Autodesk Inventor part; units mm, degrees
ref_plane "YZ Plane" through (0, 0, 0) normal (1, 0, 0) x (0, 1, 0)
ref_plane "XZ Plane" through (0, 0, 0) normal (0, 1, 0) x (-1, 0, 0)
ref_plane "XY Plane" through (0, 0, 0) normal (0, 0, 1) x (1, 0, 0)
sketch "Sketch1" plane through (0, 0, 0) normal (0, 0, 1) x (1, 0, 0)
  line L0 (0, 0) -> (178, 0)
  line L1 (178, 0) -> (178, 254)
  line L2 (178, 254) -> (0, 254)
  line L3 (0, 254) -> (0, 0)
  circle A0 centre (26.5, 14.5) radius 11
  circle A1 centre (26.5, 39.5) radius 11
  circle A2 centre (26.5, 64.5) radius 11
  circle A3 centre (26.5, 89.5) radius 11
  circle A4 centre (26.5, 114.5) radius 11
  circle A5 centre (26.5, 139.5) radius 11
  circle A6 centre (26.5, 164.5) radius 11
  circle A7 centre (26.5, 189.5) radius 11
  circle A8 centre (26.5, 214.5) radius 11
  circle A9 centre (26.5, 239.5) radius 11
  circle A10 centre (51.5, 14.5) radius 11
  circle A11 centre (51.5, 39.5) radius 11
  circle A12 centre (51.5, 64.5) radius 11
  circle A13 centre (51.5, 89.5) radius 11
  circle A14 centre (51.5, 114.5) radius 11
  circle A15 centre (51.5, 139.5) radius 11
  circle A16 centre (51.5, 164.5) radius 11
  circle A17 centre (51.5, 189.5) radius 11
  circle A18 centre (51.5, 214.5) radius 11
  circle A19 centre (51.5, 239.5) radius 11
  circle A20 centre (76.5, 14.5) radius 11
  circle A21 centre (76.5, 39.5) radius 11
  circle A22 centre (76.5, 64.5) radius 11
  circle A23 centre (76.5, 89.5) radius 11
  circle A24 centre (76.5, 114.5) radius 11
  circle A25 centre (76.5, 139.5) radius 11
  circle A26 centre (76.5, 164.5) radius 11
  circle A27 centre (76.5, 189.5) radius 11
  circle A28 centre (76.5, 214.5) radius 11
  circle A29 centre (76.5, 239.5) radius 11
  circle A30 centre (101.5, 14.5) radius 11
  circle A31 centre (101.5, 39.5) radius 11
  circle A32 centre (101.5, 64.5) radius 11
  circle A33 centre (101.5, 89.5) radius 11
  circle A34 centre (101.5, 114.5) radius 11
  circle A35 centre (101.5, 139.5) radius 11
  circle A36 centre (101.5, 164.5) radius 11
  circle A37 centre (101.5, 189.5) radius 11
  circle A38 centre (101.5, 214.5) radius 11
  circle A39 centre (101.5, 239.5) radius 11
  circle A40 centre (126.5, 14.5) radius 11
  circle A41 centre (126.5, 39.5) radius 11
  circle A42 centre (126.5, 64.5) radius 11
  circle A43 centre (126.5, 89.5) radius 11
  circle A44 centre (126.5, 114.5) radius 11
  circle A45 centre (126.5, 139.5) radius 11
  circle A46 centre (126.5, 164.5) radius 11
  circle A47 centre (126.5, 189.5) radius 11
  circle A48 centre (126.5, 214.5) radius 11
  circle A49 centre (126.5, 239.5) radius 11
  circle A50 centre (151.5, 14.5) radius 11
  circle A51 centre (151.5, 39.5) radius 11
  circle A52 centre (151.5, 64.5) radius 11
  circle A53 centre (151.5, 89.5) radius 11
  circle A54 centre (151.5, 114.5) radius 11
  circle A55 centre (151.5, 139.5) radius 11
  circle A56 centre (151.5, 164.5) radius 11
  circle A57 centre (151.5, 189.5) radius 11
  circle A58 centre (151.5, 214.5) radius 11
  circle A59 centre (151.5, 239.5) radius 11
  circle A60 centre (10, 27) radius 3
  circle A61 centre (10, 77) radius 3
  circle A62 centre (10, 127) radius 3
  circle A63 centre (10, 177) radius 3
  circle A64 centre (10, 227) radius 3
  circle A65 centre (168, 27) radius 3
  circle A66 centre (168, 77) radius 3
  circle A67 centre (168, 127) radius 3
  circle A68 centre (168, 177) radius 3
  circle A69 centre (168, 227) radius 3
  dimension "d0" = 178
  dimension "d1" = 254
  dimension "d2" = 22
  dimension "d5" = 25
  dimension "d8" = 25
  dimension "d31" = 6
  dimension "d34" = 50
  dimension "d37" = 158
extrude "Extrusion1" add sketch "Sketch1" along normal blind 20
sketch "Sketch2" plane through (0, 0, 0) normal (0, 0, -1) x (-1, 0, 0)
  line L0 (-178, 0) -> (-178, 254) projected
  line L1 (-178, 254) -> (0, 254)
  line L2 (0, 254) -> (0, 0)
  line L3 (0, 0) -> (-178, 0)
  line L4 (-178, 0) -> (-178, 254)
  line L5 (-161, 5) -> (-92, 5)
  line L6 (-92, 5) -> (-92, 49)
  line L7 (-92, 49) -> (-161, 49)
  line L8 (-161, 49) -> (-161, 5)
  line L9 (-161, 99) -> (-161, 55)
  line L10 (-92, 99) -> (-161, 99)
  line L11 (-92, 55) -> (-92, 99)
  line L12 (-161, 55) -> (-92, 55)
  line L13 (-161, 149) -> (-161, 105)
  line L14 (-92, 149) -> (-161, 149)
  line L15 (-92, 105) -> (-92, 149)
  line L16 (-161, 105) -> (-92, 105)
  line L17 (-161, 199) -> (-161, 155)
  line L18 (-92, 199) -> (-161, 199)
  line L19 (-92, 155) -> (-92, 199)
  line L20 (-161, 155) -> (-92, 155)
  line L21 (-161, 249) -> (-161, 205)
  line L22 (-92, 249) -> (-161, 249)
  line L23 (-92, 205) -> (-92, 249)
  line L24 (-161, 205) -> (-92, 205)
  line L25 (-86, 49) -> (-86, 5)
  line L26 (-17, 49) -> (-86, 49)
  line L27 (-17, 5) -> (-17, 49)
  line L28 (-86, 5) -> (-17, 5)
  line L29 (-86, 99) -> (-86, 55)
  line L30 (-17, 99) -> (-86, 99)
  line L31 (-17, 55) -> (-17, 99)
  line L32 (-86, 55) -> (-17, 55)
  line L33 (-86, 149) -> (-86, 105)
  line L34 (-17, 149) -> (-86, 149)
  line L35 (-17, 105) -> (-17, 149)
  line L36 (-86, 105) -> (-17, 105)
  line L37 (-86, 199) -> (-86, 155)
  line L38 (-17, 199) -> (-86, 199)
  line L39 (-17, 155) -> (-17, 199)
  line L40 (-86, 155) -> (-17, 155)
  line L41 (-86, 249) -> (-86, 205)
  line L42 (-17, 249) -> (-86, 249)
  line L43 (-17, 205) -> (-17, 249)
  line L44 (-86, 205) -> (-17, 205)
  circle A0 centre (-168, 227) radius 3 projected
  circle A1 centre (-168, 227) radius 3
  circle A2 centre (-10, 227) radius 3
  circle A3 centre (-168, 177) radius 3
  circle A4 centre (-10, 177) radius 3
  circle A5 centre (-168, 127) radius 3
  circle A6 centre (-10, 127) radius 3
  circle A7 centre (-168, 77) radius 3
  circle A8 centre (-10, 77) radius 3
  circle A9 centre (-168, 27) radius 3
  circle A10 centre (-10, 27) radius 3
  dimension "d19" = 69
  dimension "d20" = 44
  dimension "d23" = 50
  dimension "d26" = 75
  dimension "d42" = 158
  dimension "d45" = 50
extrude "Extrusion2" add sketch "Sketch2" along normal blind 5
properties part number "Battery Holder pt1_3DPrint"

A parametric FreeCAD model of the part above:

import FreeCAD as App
import Part
import Sketcher


def add_polygon(sketch, points):
    """Adds a closed chain of lines whose ends are joined by coincident constraints."""
    first, n = sketch.GeometryCount, len(points)
    for a, b in zip(points, points[1:] + points[:1]):
        sketch.addGeometry(Part.LineSegment(App.Vector(*a, 0), App.Vector(*b, 0)), False)
    for i in range(n):
        sketch.addConstraint(Sketcher.Constraint("Coincident", first + i, 2, first + (i + 1) % n, 1))

doc = App.newDocument("Part")
body = doc.addObject("PartDesign::Body", "Body")

# Sketch on XY plane
sketch1 = body.newObject("Sketcher::SketchObject", "Sketch")
sketch1.AttachmentSupport = (doc.getObject("XY_Plane"), [""])
sketch1.MapMode = "FlatFace"
add_polygon(sketch1, [(0, 254), (0, 0), (178, 0), (178, 254)])  # lines 0-3
sketch1.addGeometry(Part.Circle(App.Vector(10, 27, 0), App.Vector(0, 0, 1), 3), False)  # 4
sketch1.addGeometry(Part.Circle(App.Vector(26.5, 14.5, 0), App.Vector(0, 0, 1), 11), False)  # 5
sketch1.addGeometry(Part.Circle(App.Vector(26.5, 39.5, 0), App.Vector(0, 0, 1), 11), False)  # 6
sketch1.addGeometry(Part.Circle(App.Vector(51.5, 14.5, 0), App.Vector(0, 0, 1), 11), False)  # 7
sketch1.addGeometry(Part.Circle(App.Vector(76.5, 14.5, 0), App.Vector(0, 0, 1), 11), False)  # 8
sketch1.addGeometry(Part.Circle(App.Vector(51.5, 39.5, 0), App.Vector(0, 0, 1), 11), False)  # 9
sketch1.addGeometry(Part.Circle(App.Vector(76.5, 39.5, 0), App.Vector(0, 0, 1), 11), False)  # 10
sketch1.addGeometry(Part.Circle(App.Vector(10, 77, 0), App.Vector(0, 0, 1), 3), False)  # 11
sketch1.addGeometry(Part.Circle(App.Vector(26.5, 64.5, 0), App.Vector(0, 0, 1), 11), False)  # 12
sketch1.addGeometry(Part.Circle(App.Vector(26.5, 89.5, 0), App.Vector(0, 0, 1), 11), False)  # 13
sketch1.addGeometry(Part.Circle(App.Vector(26.5, 114.5, 0), App.Vector(0, 0, 1), 11), False)  # 14
sketch1.addGeometry(Part.Circle(App.Vector(51.5, 64.5, 0), App.Vector(0, 0, 1), 11), False)  # 15
sketch1.addGeometry(Part.Circle(App.Vector(51.5, 89.5, 0), App.Vector(0, 0, 1), 11), False)  # 16
sketch1.addGeometry(Part.Circle(App.Vector(76.5, 64.5, 0), App.Vector(0, 0, 1), 11), False)  # 17
sketch1.addGeometry(Part.Circle(App.Vector(76.5, 89.5, 0), App.Vector(0, 0, 1), 11), False)  # 18
sketch1.addGeometry(Part.Circle(App.Vector(51.5, 114.5, 0), App.Vector(0, 0, 1), 11), False)  # 19
sketch1.addGeometry(Part.Circle(App.Vector(76.5, 114.5, 0), App.Vector(0, 0, 1), 11), False)  # 20
sketch1.addGeometry(Part.Circle(App.Vector(101.5, 14.5, 0), App.Vector(0, 0, 1), 11), False)  # 21
sketch1.addGeometry(Part.Circle(App.Vector(126.5, 14.5, 0), App.Vector(0, 0, 1), 11), False)  # 22
sketch1.addGeometry(Part.Circle(App.Vector(101.5, 39.5, 0), App.Vector(0, 0, 1), 11), False)  # 23
sketch1.addGeometry(Part.Circle(App.Vector(126.5, 39.5, 0), App.Vector(0, 0, 1), 11), False)  # 24
sketch1.addGeometry(Part.Circle(App.Vector(151.5, 14.5, 0), App.Vector(0, 0, 1), 11), False)  # 25
sketch1.addGeometry(Part.Circle(App.Vector(168, 27, 0), App.Vector(0, 0, 1), 3), False)  # 26
sketch1.addGeometry(Part.Circle(App.Vector(151.5, 39.5, 0), App.Vector(0, 0, 1), 11), False)  # 27
sketch1.addGeometry(Part.Circle(App.Vector(101.5, 64.5, 0), App.Vector(0, 0, 1), 11), False)  # 28
sketch1.addGeometry(Part.Circle(App.Vector(101.5, 89.5, 0), App.Vector(0, 0, 1), 11), False)  # 29
sketch1.addGeometry(Part.Circle(App.Vector(126.5, 64.5, 0), App.Vector(0, 0, 1), 11), False)  # 30
sketch1.addGeometry(Part.Circle(App.Vector(126.5, 89.5, 0), App.Vector(0, 0, 1), 11), False)  # 31
sketch1.addGeometry(Part.Circle(App.Vector(101.5, 114.5, 0), App.Vector(0, 0, 1), 11), False)  # 32
sketch1.addGeometry(Part.Circle(App.Vector(126.5, 114.5, 0), App.Vector(0, 0, 1), 11), False)  # 33
sketch1.addGeometry(Part.Circle(App.Vector(151.5, 64.5, 0), App.Vector(0, 0, 1), 11), False)  # 34
sketch1.addGeometry(Part.Circle(App.Vector(151.5, 89.5, 0), App.Vector(0, 0, 1), 11), False)  # 35
sketch1.addGeometry(Part.Circle(App.Vector(168, 77, 0), App.Vector(0, 0, 1), 3), False)  # 36
sketch1.addGeometry(Part.Circle(App.Vector(151.5, 114.5, 0), App.Vector(0, 0, 1), 11), False)  # 37
sketch1.addGeometry(Part.Circle(App.Vector(10, 127, 0), App.Vector(0, 0, 1), 3), False)  # 38
sketch1.addGeometry(Part.Circle(App.Vector(26.5, 139.5, 0), App.Vector(0, 0, 1), 11), False)  # 39
sketch1.addGeometry(Part.Circle(App.Vector(10, 177, 0), App.Vector(0, 0, 1), 3), False)  # 40
sketch1.addGeometry(Part.Circle(App.Vector(26.5, 164.5, 0), App.Vector(0, 0, 1), 11), False)  # 41
sketch1.addGeometry(Part.Circle(App.Vector(26.5, 189.5, 0), App.Vector(0, 0, 1), 11), False)  # 42
sketch1.addGeometry(Part.Circle(App.Vector(51.5, 139.5, 0), App.Vector(0, 0, 1), 11), False)  # 43
sketch1.addGeometry(Part.Circle(App.Vector(76.5, 139.5, 0), App.Vector(0, 0, 1), 11), False)  # 44
sketch1.addGeometry(Part.Circle(App.Vector(51.5, 164.5, 0), App.Vector(0, 0, 1), 11), False)  # 45
sketch1.addGeometry(Part.Circle(App.Vector(51.5, 189.5, 0), App.Vector(0, 0, 1), 11), False)  # 46
sketch1.addGeometry(Part.Circle(App.Vector(76.5, 164.5, 0), App.Vector(0, 0, 1), 11), False)  # 47
sketch1.addGeometry(Part.Circle(App.Vector(76.5, 189.5, 0), App.Vector(0, 0, 1), 11), False)  # 48
sketch1.addGeometry(Part.Circle(App.Vector(26.5, 214.5, 0), App.Vector(0, 0, 1), 11), False)  # 49
sketch1.addGeometry(Part.Circle(App.Vector(10, 227, 0), App.Vector(0, 0, 1), 3), False)  # 50
sketch1.addGeometry(Part.Circle(App.Vector(26.5, 239.5, 0), App.Vector(0, 0, 1), 11), False)  # 51
sketch1.addGeometry(Part.Circle(App.Vector(51.5, 214.5, 0), App.Vector(0, 0, 1), 11), False)  # 52
sketch1.addGeometry(Part.Circle(App.Vector(76.5, 214.5, 0), App.Vector(0, 0, 1), 11), False)  # 53
sketch1.addGeometry(Part.Circle(App.Vector(51.5, 239.5, 0), App.Vector(0, 0, 1), 11), False)  # 54
sketch1.addGeometry(Part.Circle(App.Vector(76.5, 239.5, 0), App.Vector(0, 0, 1), 11), False)  # 55
sketch1.addGeometry(Part.Circle(App.Vector(101.5, 139.5, 0), App.Vector(0, 0, 1), 11), False)  # 56
sketch1.addGeometry(Part.Circle(App.Vector(126.5, 139.5, 0), App.Vector(0, 0, 1), 11), False)  # 57
sketch1.addGeometry(Part.Circle(App.Vector(101.5, 164.5, 0), App.Vector(0, 0, 1), 11), False)  # 58
sketch1.addGeometry(Part.Circle(App.Vector(101.5, 189.5, 0), App.Vector(0, 0, 1), 11), False)  # 59
sketch1.addGeometry(Part.Circle(App.Vector(126.5, 164.5, 0), App.Vector(0, 0, 1), 11), False)  # 60
sketch1.addGeometry(Part.Circle(App.Vector(126.5, 189.5, 0), App.Vector(0, 0, 1), 11), False)  # 61
sketch1.addGeometry(Part.Circle(App.Vector(151.5, 139.5, 0), App.Vector(0, 0, 1), 11), False)  # 62
sketch1.addGeometry(Part.Circle(App.Vector(168, 127, 0), App.Vector(0, 0, 1), 3), False)  # 63
sketch1.addGeometry(Part.Circle(App.Vector(151.5, 164.5, 0), App.Vector(0, 0, 1), 11), False)  # 64
sketch1.addGeometry(Part.Circle(App.Vector(151.5, 189.5, 0), App.Vector(0, 0, 1), 11), False)  # 65
sketch1.addGeometry(Part.Circle(App.Vector(168, 177, 0), App.Vector(0, 0, 1), 3), False)  # 66
sketch1.addGeometry(Part.Circle(App.Vector(101.5, 214.5, 0), App.Vector(0, 0, 1), 11), False)  # 67
sketch1.addGeometry(Part.Circle(App.Vector(126.5, 214.5, 0), App.Vector(0, 0, 1), 11), False)  # 68
sketch1.addGeometry(Part.Circle(App.Vector(101.5, 239.5, 0), App.Vector(0, 0, 1), 11), False)  # 69
sketch1.addGeometry(Part.Circle(App.Vector(126.5, 239.5, 0), App.Vector(0, 0, 1), 11), False)  # 70
sketch1.addGeometry(Part.Circle(App.Vector(151.5, 214.5, 0), App.Vector(0, 0, 1), 11), False)  # 71
sketch1.addGeometry(Part.Circle(App.Vector(151.5, 239.5, 0), App.Vector(0, 0, 1), 11), False)  # 72
sketch1.addGeometry(Part.Circle(App.Vector(168, 227, 0), App.Vector(0, 0, 1), 3), False)  # 73
sketch1.addConstraint([
    Sketcher.Constraint("Vertical", 0),
    Sketcher.Constraint("Horizontal", 1),
    Sketcher.Constraint("Vertical", 2),
    Sketcher.Constraint("Horizontal", 3),
    Sketcher.Constraint("Coincident", 0, 2, -1, 1),
    Sketcher.Constraint("Equal", 5, 6),
    Sketcher.Constraint("Equal", 6, 7),
    Sketcher.Constraint("Equal", 7, 8),
    Sketcher.Constraint("Equal", 8, 9),
    Sketcher.Constraint("Equal", 9, 10),
    Sketcher.Constraint("Equal", 4, 11),
    Sketcher.Constraint("Equal", 10, 12),
    Sketcher.Constraint("Equal", 12, 13),
    Sketcher.Constraint("Equal", 13, 14),
    Sketcher.Constraint("Equal", 14, 15),
    Sketcher.Constraint("Equal", 15, 16),
    Sketcher.Constraint("Equal", 16, 17),
    Sketcher.Constraint("Equal", 17, 18),
    Sketcher.Constraint("Equal", 18, 19),
    Sketcher.Constraint("Equal", 19, 20),
    Sketcher.Constraint("Equal", 20, 21),
    Sketcher.Constraint("Equal", 21, 22),
    Sketcher.Constraint("Equal", 22, 23),
    Sketcher.Constraint("Equal", 23, 24),
    Sketcher.Constraint("Equal", 24, 25),
    Sketcher.Constraint("Equal", 11, 26),
    Sketcher.Constraint("Equal", 25, 27),
    Sketcher.Constraint("Equal", 27, 28),
    Sketcher.Constraint("Equal", 28, 29),
    Sketcher.Constraint("Equal", 29, 30),
    Sketcher.Constraint("Equal", 30, 31),
    Sketcher.Constraint("Equal", 31, 32),
    Sketcher.Constraint("Equal", 32, 33),
    Sketcher.Constraint("Equal", 33, 34),
    Sketcher.Constraint("Equal", 34, 35),
    Sketcher.Constraint("Equal", 26, 36),
    Sketcher.Constraint("Equal", 35, 37),
    Sketcher.Constraint("Equal", 36, 38),
    Sketcher.Constraint("Equal", 37, 39),
    Sketcher.Constraint("Equal", 38, 40),
    Sketcher.Constraint("Equal", 39, 41),
    Sketcher.Constraint("Equal", 41, 42),
    Sketcher.Constraint("Equal", 42, 43),
    Sketcher.Constraint("Equal", 43, 44),
    Sketcher.Constraint("Equal", 44, 45),
    Sketcher.Constraint("Equal", 45, 46),
    Sketcher.Constraint("Equal", 46, 47),
    Sketcher.Constraint("Equal", 47, 48),
    Sketcher.Constraint("Equal", 48, 49),
    Sketcher.Constraint("Equal", 40, 50),
    Sketcher.Constraint("Equal", 49, 51),
    Sketcher.Constraint("Equal", 51, 52),
    Sketcher.Constraint("Equal", 52, 53),
    Sketcher.Constraint("Equal", 53, 54),
    Sketcher.Constraint("Equal", 54, 55),
    Sketcher.Constraint("Equal", 55, 56),
    Sketcher.Constraint("Equal", 56, 57),
    Sketcher.Constraint("Equal", 57, 58),
    Sketcher.Constraint("Equal", 58, 59),
    Sketcher.Constraint("Equal", 59, 60),
    Sketcher.Constraint("Equal", 60, 61),
    Sketcher.Constraint("Equal", 61, 62),
    Sketcher.Constraint("Equal", 50, 63),
    Sketcher.Constraint("Equal", 62, 64),
    Sketcher.Constraint("Equal", 64, 65),
    Sketcher.Constraint("Equal", 63, 66),
    Sketcher.Constraint("Equal", 65, 67),
    Sketcher.Constraint("Equal", 67, 68),
    Sketcher.Constraint("Equal", 68, 69),
    Sketcher.Constraint("Equal", 69, 70),
    Sketcher.Constraint("Equal", 70, 71),
    Sketcher.Constraint("Equal", 71, 72),
    Sketcher.Constraint("Equal", 66, 73),
    Sketcher.Constraint("Horizontal", 5, 3, 7, 3),
    Sketcher.Constraint("Horizontal", 7, 3, 8, 3),
    Sketcher.Constraint("Horizontal", 6, 3, 9, 3),
    Sketcher.Constraint("Horizontal", 9, 3, 10, 3),
    Sketcher.Constraint("Horizontal", 12, 3, 15, 3),
    Sketcher.Constraint("Horizontal", 13, 3, 16, 3),
    Sketcher.Constraint("Horizontal", 15, 3, 17, 3),
    Sketcher.Constraint("Horizontal", 16, 3, 18, 3),
    Sketcher.Constraint("Horizontal", 14, 3, 19, 3),
    Sketcher.Constraint("Horizontal", 19, 3, 20, 3),
    Sketcher.Constraint("Horizontal", 8, 3, 21, 3),
    Sketcher.Constraint("Horizontal", 21, 3, 22, 3),
    Sketcher.Constraint("Horizontal", 10, 3, 23, 3),
    Sketcher.Constraint("Horizontal", 23, 3, 24, 3),
    Sketcher.Constraint("Horizontal", 22, 3, 25, 3),
    Sketcher.Constraint("Horizontal", 4, 3, 26, 3),
    Sketcher.Constraint("Horizontal", 24, 3, 27, 3),
    Sketcher.Constraint("Horizontal", 17, 3, 28, 3),
    Sketcher.Constraint("Horizontal", 18, 3, 29, 3),
    Sketcher.Constraint("Horizontal", 28, 3, 30, 3),
    Sketcher.Constraint("Horizontal", 29, 3, 31, 3),
    Sketcher.Constraint("Horizontal", 20, 3, 32, 3),
    Sketcher.Constraint("Horizontal", 32, 3, 33, 3),
    Sketcher.Constraint("Horizontal", 30, 3, 34, 3),
    Sketcher.Constraint("Horizontal", 31, 3, 35, 3),
    Sketcher.Constraint("Horizontal", 11, 3, 36, 3),
    Sketcher.Constraint("Horizontal", 33, 3, 37, 3),
    Sketcher.Constraint("Horizontal", 39, 3, 43, 3),
    Sketcher.Constraint("Horizontal", 43, 3, 44, 3),
    Sketcher.Constraint("Horizontal", 41, 3, 45, 3),
    Sketcher.Constraint("Horizontal", 42, 3, 46, 3),
    Sketcher.Constraint("Horizontal", 45, 3, 47, 3),
    Sketcher.Constraint("Horizontal", 46, 3, 48, 3),
    Sketcher.Constraint("Horizontal", 49, 3, 52, 3),
    Sketcher.Constraint("Horizontal", 52, 3, 53, 3),
    Sketcher.Constraint("Horizontal", 51, 3, 54, 3),
    Sketcher.Constraint("Horizontal", 54, 3, 55, 3),
    Sketcher.Constraint("Horizontal", 44, 3, 56, 3),
    Sketcher.Constraint("Horizontal", 56, 3, 57, 3),
    Sketcher.Constraint("Horizontal", 47, 3, 58, 3),
    Sketcher.Constraint("Horizontal", 48, 3, 59, 3),
    Sketcher.Constraint("Horizontal", 58, 3, 60, 3),
    Sketcher.Constraint("Horizontal", 59, 3, 61, 3),
    Sketcher.Constraint("Horizontal", 57, 3, 62, 3),
    Sketcher.Constraint("Horizontal", 38, 3, 63, 3),
    Sketcher.Constraint("Horizontal", 60, 3, 64, 3),
    Sketcher.Constraint("Horizontal", 61, 3, 65, 3),
    Sketcher.Constraint("Horizontal", 40, 3, 66, 3),
    Sketcher.Constraint("Horizontal", 53, 3, 67, 3),
    Sketcher.Constraint("Horizontal", 67, 3, 68, 3),
    Sketcher.Constraint("Horizontal", 55, 3, 69, 3),
    Sketcher.Constraint("Horizontal", 69, 3, 70, 3),
    Sketcher.Constraint("Horizontal", 68, 3, 71, 3),
    Sketcher.Constraint("Horizontal", 70, 3, 72, 3),
    Sketcher.Constraint("Horizontal", 50, 3, 73, 3),
    Sketcher.Constraint("Vertical", 5, 3, 6, 3),
    Sketcher.Constraint("Vertical", 7, 3, 9, 3),
    Sketcher.Constraint("Vertical", 8, 3, 10, 3),
    Sketcher.Constraint("Vertical", 4, 3, 11, 3),
    Sketcher.Constraint("Vertical", 6, 3, 12, 3),
    Sketcher.Constraint("Vertical", 12, 3, 13, 3),
    Sketcher.Constraint("Vertical", 13, 3, 14, 3),
    Sketcher.Constraint("Vertical", 9, 3, 15, 3),
    Sketcher.Constraint("Vertical", 15, 3, 16, 3),
    Sketcher.Constraint("Vertical", 10, 3, 17, 3),
    Sketcher.Constraint("Vertical", 17, 3, 18, 3),
    Sketcher.Constraint("Vertical", 16, 3, 19, 3),
    Sketcher.Constraint("Vertical", 18, 3, 20, 3),
    Sketcher.Constraint("Vertical", 21, 3, 23, 3),
    Sketcher.Constraint("Vertical", 22, 3, 24, 3),
    Sketcher.Constraint("Vertical", 25, 3, 27, 3),
    Sketcher.Constraint("Vertical", 23, 3, 28, 3),
    Sketcher.Constraint("Vertical", 28, 3, 29, 3),
    Sketcher.Constraint("Vertical", 24, 3, 30, 3),
    Sketcher.Constraint("Vertical", 30, 3, 31, 3),
    Sketcher.Constraint("Vertical", 29, 3, 32, 3),
    Sketcher.Constraint("Vertical", 31, 3, 33, 3),
    Sketcher.Constraint("Vertical", 27, 3, 34, 3),
    Sketcher.Constraint("Vertical", 34, 3, 35, 3),
    Sketcher.Constraint("Vertical", 26, 3, 36, 3),
    Sketcher.Constraint("Vertical", 35, 3, 37, 3),
    Sketcher.Constraint("Vertical", 11, 3, 38, 3),
    Sketcher.Constraint("Vertical", 14, 3, 39, 3),
    Sketcher.Constraint("Vertical", 38, 3, 40, 3),
    Sketcher.Constraint("Vertical", 39, 3, 41, 3),
    Sketcher.Constraint("Vertical", 41, 3, 42, 3),
    Sketcher.Constraint("Vertical", 19, 3, 43, 3),
    Sketcher.Constraint("Vertical", 20, 3, 44, 3),
    Sketcher.Constraint("Vertical", 43, 3, 45, 3),
    Sketcher.Constraint("Vertical", 45, 3, 46, 3),
    Sketcher.Constraint("Vertical", 44, 3, 47, 3),
    Sketcher.Constraint("Vertical", 47, 3, 48, 3),
    Sketcher.Constraint("Vertical", 42, 3, 49, 3),
    Sketcher.Constraint("Vertical", 40, 3, 50, 3),
    Sketcher.Constraint("Vertical", 49, 3, 51, 3),
    Sketcher.Constraint("Vertical", 46, 3, 52, 3),
    Sketcher.Constraint("Vertical", 48, 3, 53, 3),
    Sketcher.Constraint("Vertical", 52, 3, 54, 3),
    Sketcher.Constraint("Vertical", 53, 3, 55, 3),
    Sketcher.Constraint("Vertical", 32, 3, 56, 3),
    Sketcher.Constraint("Vertical", 33, 3, 57, 3),
    Sketcher.Constraint("Vertical", 56, 3, 58, 3),
    Sketcher.Constraint("Vertical", 58, 3, 59, 3),
    Sketcher.Constraint("Vertical", 57, 3, 60, 3),
    Sketcher.Constraint("Vertical", 60, 3, 61, 3),
    Sketcher.Constraint("Vertical", 37, 3, 62, 3),
    Sketcher.Constraint("Vertical", 36, 3, 63, 3),
    Sketcher.Constraint("Vertical", 62, 3, 64, 3),
    Sketcher.Constraint("Vertical", 64, 3, 65, 3),
    Sketcher.Constraint("Vertical", 63, 3, 66, 3),
    Sketcher.Constraint("Vertical", 59, 3, 67, 3),
    Sketcher.Constraint("Vertical", 61, 3, 68, 3),
    Sketcher.Constraint("Vertical", 67, 3, 69, 3),
    Sketcher.Constraint("Vertical", 68, 3, 70, 3),
    Sketcher.Constraint("Vertical", 65, 3, 71, 3),
    Sketcher.Constraint("Vertical", 71, 3, 72, 3),
    Sketcher.Constraint("Vertical", 66, 3, 73, 3),
    Sketcher.Constraint("Diameter", 4, 6.0),
    Sketcher.Constraint("Diameter", 5, 22.0),
    Sketcher.Constraint("DistanceX", 1, 1, 1, 2, 178.0),
    Sketcher.Constraint("DistanceY", 0, 2, 0, 1, 254.0),
    Sketcher.Constraint("DistanceX", -1, 1, 4, 3, 10.0),
    Sketcher.Constraint("DistanceY", -1, 1, 4, 3, 27.0),
    Sketcher.Constraint("DistanceY", -1, 1, 11, 3, 77.0),
    Sketcher.Constraint("DistanceX", -1, 1, 26, 3, 168.0),
    Sketcher.Constraint("DistanceY", -1, 1, 38, 3, 127.0),
    Sketcher.Constraint("DistanceY", -1, 1, 40, 3, 177.0),
    Sketcher.Constraint("DistanceY", -1, 1, 50, 3, 227.0),
    Sketcher.Constraint("DistanceX", -1, 1, 5, 3, 26.5),
    Sketcher.Constraint("DistanceY", -1, 1, 5, 3, 14.5),
    Sketcher.Constraint("DistanceY", -1, 1, 6, 3, 39.5),
    Sketcher.Constraint("DistanceX", -1, 1, 7, 3, 51.5),
    Sketcher.Constraint("DistanceX", -1, 1, 8, 3, 76.5),
    Sketcher.Constraint("DistanceY", -1, 1, 12, 3, 64.5),
    Sketcher.Constraint("DistanceY", -1, 1, 13, 3, 89.5),
    Sketcher.Constraint("DistanceY", -1, 1, 14, 3, 114.5),
    Sketcher.Constraint("DistanceX", -1, 1, 21, 3, 101.5),
    Sketcher.Constraint("DistanceX", -1, 1, 22, 3, 126.5),
    Sketcher.Constraint("DistanceX", -1, 1, 25, 3, 151.5),
    Sketcher.Constraint("DistanceY", -1, 1, 39, 3, 139.5),
    Sketcher.Constraint("DistanceY", -1, 1, 41, 3, 164.5),
    Sketcher.Constraint("DistanceY", -1, 1, 42, 3, 189.5),
    Sketcher.Constraint("DistanceY", -1, 1, 49, 3, 214.5),
    Sketcher.Constraint("DistanceY", -1, 1, 51, 3, 239.5),
])
pad1 = body.newObject("PartDesign::Pad", "Pad")
pad1.Profile = sketch1
pad1.Length = 20

# Sketch on XY plane
sketch2 = body.newObject("Sketcher::SketchObject", "Sketch001")
sketch2.AttachmentSupport = (doc.getObject("XY_Plane"), [""])
sketch2.MapMode = "FlatFace"
add_polygon(sketch2, [(178, 254), (178, 0), (0, 0), (0, 254)])  # lines 0-3
sketch2.addGeometry(Part.Circle(App.Vector(168, 27, 0), App.Vector(0, 0, 1), 3), False)  # 4
add_polygon(sketch2, [(92, 5), (161, 5), (161, 49), (92, 49)])  # lines 5-8
sketch2.addGeometry(Part.Circle(App.Vector(168, 77, 0), App.Vector(0, 0, 1), 3), False)  # 9
add_polygon(sketch2, [(161, 55), (161, 99), (92, 99), (92, 55)])  # lines 10-13
add_polygon(sketch2, [(86, 5), (86, 49), (17, 49), (17, 5)])  # lines 14-17
sketch2.addGeometry(Part.Circle(App.Vector(10, 27, 0), App.Vector(0, 0, 1), 3), False)  # 18
add_polygon(sketch2, [(86, 55), (86, 99), (17, 99), (17, 55)])  # lines 19-22
sketch2.addGeometry(Part.Circle(App.Vector(10, 77, 0), App.Vector(0, 0, 1), 3), False)  # 23
sketch2.addGeometry(Part.Circle(App.Vector(168, 127, 0), App.Vector(0, 0, 1), 3), False)  # 24
sketch2.addGeometry(Part.Circle(App.Vector(168, 177, 0), App.Vector(0, 0, 1), 3), False)  # 25
add_polygon(sketch2, [(161, 105), (161, 149), (92, 149), (92, 105)])  # lines 26-29
add_polygon(sketch2, [(161, 155), (161, 199), (92, 199), (92, 155)])  # lines 30-33
sketch2.addGeometry(Part.Circle(App.Vector(168, 227, 0), App.Vector(0, 0, 1), 3), False)  # 34
add_polygon(sketch2, [(161, 205), (161, 249), (92, 249), (92, 205)])  # lines 35-38
add_polygon(sketch2, [(86, 105), (86, 149), (17, 149), (17, 105)])  # lines 39-42
add_polygon(sketch2, [(86, 155), (86, 199), (17, 199), (17, 155)])  # lines 43-46
sketch2.addGeometry(Part.Circle(App.Vector(10, 127, 0), App.Vector(0, 0, 1), 3), False)  # 47
sketch2.addGeometry(Part.Circle(App.Vector(10, 177, 0), App.Vector(0, 0, 1), 3), False)  # 48
add_polygon(sketch2, [(86, 205), (86, 249), (17, 249), (17, 205)])  # lines 49-52
sketch2.addGeometry(Part.Circle(App.Vector(10, 227, 0), App.Vector(0, 0, 1), 3), False)  # 53
sketch2.addConstraint([
    Sketcher.Constraint("Vertical", 0),
    Sketcher.Constraint("Horizontal", 1),
    Sketcher.Constraint("Vertical", 2),
    Sketcher.Constraint("Horizontal", 3),
    Sketcher.Constraint("Horizontal", 5),
    Sketcher.Constraint("Vertical", 6),
    Sketcher.Constraint("Horizontal", 7),
    Sketcher.Constraint("Vertical", 8),
    Sketcher.Constraint("Vertical", 10),
    Sketcher.Constraint("Horizontal", 11),
    Sketcher.Constraint("Vertical", 12),
    Sketcher.Constraint("Horizontal", 13),
    Sketcher.Constraint("Vertical", 14),
    Sketcher.Constraint("Horizontal", 15),
    Sketcher.Constraint("Vertical", 16),
    Sketcher.Constraint("Horizontal", 17),
    Sketcher.Constraint("Vertical", 19),
    Sketcher.Constraint("Horizontal", 20),
    Sketcher.Constraint("Vertical", 21),
    Sketcher.Constraint("Horizontal", 22),
    Sketcher.Constraint("Vertical", 26),
    Sketcher.Constraint("Horizontal", 27),
    Sketcher.Constraint("Vertical", 28),
    Sketcher.Constraint("Horizontal", 29),
    Sketcher.Constraint("Vertical", 30),
    Sketcher.Constraint("Horizontal", 31),
    Sketcher.Constraint("Vertical", 32),
    Sketcher.Constraint("Horizontal", 33),
    Sketcher.Constraint("Vertical", 35),
    Sketcher.Constraint("Horizontal", 36),
    Sketcher.Constraint("Vertical", 37),
    Sketcher.Constraint("Horizontal", 38),
    Sketcher.Constraint("Vertical", 39),
    Sketcher.Constraint("Horizontal", 40),
    Sketcher.Constraint("Vertical", 41),
    Sketcher.Constraint("Horizontal", 42),
    Sketcher.Constraint("Vertical", 43),
    Sketcher.Constraint("Horizontal", 44),
    Sketcher.Constraint("Vertical", 45),
    Sketcher.Constraint("Horizontal", 46),
    Sketcher.Constraint("Vertical", 49),
    Sketcher.Constraint("Horizontal", 50),
    Sketcher.Constraint("Vertical", 51),
    Sketcher.Constraint("Horizontal", 52),
    Sketcher.Constraint("Coincident", 1, 2, -1, 1),
    Sketcher.Constraint("Equal", 4, 9),
    Sketcher.Constraint("Equal", 9, 18),
    Sketcher.Constraint("Equal", 18, 23),
    Sketcher.Constraint("Equal", 23, 24),
    Sketcher.Constraint("Equal", 24, 25),
    Sketcher.Constraint("Equal", 25, 34),
    Sketcher.Constraint("Equal", 34, 47),
    Sketcher.Constraint("Equal", 47, 48),
    Sketcher.Constraint("Equal", 48, 53),
    Sketcher.Constraint("Horizontal", 4, 3, 18, 3),
    Sketcher.Constraint("Horizontal", 9, 3, 23, 3),
    Sketcher.Constraint("Horizontal", 24, 3, 47, 3),
    Sketcher.Constraint("Horizontal", 25, 3, 48, 3),
    Sketcher.Constraint("Horizontal", 34, 3, 53, 3),
    Sketcher.Constraint("Horizontal", 7, 2, 14, 2),
    Sketcher.Constraint("Horizontal", 8, 2, 16, 2),
    Sketcher.Constraint("Horizontal", 11, 2, 19, 2),
    Sketcher.Constraint("Horizontal", 13, 2, 21, 2),
    Sketcher.Constraint("Horizontal", 27, 2, 39, 2),
    Sketcher.Constraint("Horizontal", 29, 2, 41, 2),
    Sketcher.Constraint("Horizontal", 31, 2, 43, 2),
    Sketcher.Constraint("Horizontal", 33, 2, 45, 2),
    Sketcher.Constraint("Horizontal", 36, 2, 49, 2),
    Sketcher.Constraint("Horizontal", 38, 2, 51, 2),
    Sketcher.Constraint("Vertical", 4, 3, 9, 3),
    Sketcher.Constraint("Vertical", 18, 3, 23, 3),
    Sketcher.Constraint("Vertical", 9, 3, 24, 3),
    Sketcher.Constraint("Vertical", 24, 3, 25, 3),
    Sketcher.Constraint("Vertical", 25, 3, 34, 3),
    Sketcher.Constraint("Vertical", 23, 3, 47, 3),
    Sketcher.Constraint("Vertical", 47, 3, 48, 3),
    Sketcher.Constraint("Vertical", 48, 3, 53, 3),
    Sketcher.Constraint("Vertical", 6, 2, 10, 2),
    Sketcher.Constraint("Vertical", 8, 2, 11, 2),
    Sketcher.Constraint("Vertical", 17, 2, 19, 2),
    Sketcher.Constraint("Vertical", 16, 2, 20, 2),
    Sketcher.Constraint("Vertical", 13, 2, 26, 2),
    Sketcher.Constraint("Vertical", 12, 2, 27, 2),
    Sketcher.Constraint("Vertical", 29, 2, 30, 2),
    Sketcher.Constraint("Vertical", 28, 2, 31, 2),
    Sketcher.Constraint("Vertical", 33, 2, 35, 2),
    Sketcher.Constraint("Vertical", 32, 2, 36, 2),
    Sketcher.Constraint("Vertical", 22, 2, 39, 2),
    Sketcher.Constraint("Vertical", 21, 2, 40, 2),
    Sketcher.Constraint("Vertical", 42, 2, 43, 2),
    Sketcher.Constraint("Vertical", 41, 2, 44, 2),
    Sketcher.Constraint("Vertical", 46, 2, 49, 2),
    Sketcher.Constraint("Vertical", 45, 2, 50, 2),
    Sketcher.Constraint("Equal", 13, 15),
    Sketcher.Constraint("Equal", 8, 10),
    Sketcher.Constraint("Equal", 21, 26),
    Sketcher.Constraint("Equal", 28, 30),
    Sketcher.Constraint("Equal", 32, 35),
    Sketcher.Constraint("DistanceX", 5, 1, 5, 2, 69.0),
    Sketcher.Constraint("DistanceY", 6, 1, 6, 2, 44.0),
    Sketcher.Constraint("Diameter", 4, 6.0),
    Sketcher.Constraint("DistanceY", 4, 3, 9, 3, 50.0),
    Sketcher.Constraint("DistanceX", 18, 3, 4, 3, 158.0),
    Sketcher.Constraint("DistanceY", 9, 3, 24, 3, 50.0),
    Sketcher.Constraint("DistanceY", 24, 3, 25, 3, 50.0),
    Sketcher.Constraint("DistanceY", 25, 3, 34, 3, 50.0),
    Sketcher.Constraint("DistanceY", 6, 2, 10, 2, 50.0),
    Sketcher.Constraint("DistanceX", 14, 2, 6, 2, 75.0),
    Sketcher.Constraint("DistanceY", 10, 2, 26, 2, 50.0),
    Sketcher.Constraint("DistanceY", 26, 2, 30, 2, 50.0),
    Sketcher.Constraint("DistanceY", 30, 2, 35, 2, 50.0),
    Sketcher.Constraint("DistanceX", 1, 2, 1, 1, 178.0),
    Sketcher.Constraint("DistanceY", 0, 2, 0, 1, 254.0),
    Sketcher.Constraint("DistanceX", -1, 1, 4, 3, 168.0),
    Sketcher.Constraint("DistanceY", -1, 1, 4, 3, 27.0),
    Sketcher.Constraint("DistanceX", -1, 1, 5, 2, 161.0),
    Sketcher.Constraint("DistanceY", -1, 1, 5, 2, 5.0),
])
pad2 = body.newObject("PartDesign::Pad", "Pad001")
pad2.Profile = sketch2
pad2.Length = 5
pad2.Reversed = True

doc.recompute()
